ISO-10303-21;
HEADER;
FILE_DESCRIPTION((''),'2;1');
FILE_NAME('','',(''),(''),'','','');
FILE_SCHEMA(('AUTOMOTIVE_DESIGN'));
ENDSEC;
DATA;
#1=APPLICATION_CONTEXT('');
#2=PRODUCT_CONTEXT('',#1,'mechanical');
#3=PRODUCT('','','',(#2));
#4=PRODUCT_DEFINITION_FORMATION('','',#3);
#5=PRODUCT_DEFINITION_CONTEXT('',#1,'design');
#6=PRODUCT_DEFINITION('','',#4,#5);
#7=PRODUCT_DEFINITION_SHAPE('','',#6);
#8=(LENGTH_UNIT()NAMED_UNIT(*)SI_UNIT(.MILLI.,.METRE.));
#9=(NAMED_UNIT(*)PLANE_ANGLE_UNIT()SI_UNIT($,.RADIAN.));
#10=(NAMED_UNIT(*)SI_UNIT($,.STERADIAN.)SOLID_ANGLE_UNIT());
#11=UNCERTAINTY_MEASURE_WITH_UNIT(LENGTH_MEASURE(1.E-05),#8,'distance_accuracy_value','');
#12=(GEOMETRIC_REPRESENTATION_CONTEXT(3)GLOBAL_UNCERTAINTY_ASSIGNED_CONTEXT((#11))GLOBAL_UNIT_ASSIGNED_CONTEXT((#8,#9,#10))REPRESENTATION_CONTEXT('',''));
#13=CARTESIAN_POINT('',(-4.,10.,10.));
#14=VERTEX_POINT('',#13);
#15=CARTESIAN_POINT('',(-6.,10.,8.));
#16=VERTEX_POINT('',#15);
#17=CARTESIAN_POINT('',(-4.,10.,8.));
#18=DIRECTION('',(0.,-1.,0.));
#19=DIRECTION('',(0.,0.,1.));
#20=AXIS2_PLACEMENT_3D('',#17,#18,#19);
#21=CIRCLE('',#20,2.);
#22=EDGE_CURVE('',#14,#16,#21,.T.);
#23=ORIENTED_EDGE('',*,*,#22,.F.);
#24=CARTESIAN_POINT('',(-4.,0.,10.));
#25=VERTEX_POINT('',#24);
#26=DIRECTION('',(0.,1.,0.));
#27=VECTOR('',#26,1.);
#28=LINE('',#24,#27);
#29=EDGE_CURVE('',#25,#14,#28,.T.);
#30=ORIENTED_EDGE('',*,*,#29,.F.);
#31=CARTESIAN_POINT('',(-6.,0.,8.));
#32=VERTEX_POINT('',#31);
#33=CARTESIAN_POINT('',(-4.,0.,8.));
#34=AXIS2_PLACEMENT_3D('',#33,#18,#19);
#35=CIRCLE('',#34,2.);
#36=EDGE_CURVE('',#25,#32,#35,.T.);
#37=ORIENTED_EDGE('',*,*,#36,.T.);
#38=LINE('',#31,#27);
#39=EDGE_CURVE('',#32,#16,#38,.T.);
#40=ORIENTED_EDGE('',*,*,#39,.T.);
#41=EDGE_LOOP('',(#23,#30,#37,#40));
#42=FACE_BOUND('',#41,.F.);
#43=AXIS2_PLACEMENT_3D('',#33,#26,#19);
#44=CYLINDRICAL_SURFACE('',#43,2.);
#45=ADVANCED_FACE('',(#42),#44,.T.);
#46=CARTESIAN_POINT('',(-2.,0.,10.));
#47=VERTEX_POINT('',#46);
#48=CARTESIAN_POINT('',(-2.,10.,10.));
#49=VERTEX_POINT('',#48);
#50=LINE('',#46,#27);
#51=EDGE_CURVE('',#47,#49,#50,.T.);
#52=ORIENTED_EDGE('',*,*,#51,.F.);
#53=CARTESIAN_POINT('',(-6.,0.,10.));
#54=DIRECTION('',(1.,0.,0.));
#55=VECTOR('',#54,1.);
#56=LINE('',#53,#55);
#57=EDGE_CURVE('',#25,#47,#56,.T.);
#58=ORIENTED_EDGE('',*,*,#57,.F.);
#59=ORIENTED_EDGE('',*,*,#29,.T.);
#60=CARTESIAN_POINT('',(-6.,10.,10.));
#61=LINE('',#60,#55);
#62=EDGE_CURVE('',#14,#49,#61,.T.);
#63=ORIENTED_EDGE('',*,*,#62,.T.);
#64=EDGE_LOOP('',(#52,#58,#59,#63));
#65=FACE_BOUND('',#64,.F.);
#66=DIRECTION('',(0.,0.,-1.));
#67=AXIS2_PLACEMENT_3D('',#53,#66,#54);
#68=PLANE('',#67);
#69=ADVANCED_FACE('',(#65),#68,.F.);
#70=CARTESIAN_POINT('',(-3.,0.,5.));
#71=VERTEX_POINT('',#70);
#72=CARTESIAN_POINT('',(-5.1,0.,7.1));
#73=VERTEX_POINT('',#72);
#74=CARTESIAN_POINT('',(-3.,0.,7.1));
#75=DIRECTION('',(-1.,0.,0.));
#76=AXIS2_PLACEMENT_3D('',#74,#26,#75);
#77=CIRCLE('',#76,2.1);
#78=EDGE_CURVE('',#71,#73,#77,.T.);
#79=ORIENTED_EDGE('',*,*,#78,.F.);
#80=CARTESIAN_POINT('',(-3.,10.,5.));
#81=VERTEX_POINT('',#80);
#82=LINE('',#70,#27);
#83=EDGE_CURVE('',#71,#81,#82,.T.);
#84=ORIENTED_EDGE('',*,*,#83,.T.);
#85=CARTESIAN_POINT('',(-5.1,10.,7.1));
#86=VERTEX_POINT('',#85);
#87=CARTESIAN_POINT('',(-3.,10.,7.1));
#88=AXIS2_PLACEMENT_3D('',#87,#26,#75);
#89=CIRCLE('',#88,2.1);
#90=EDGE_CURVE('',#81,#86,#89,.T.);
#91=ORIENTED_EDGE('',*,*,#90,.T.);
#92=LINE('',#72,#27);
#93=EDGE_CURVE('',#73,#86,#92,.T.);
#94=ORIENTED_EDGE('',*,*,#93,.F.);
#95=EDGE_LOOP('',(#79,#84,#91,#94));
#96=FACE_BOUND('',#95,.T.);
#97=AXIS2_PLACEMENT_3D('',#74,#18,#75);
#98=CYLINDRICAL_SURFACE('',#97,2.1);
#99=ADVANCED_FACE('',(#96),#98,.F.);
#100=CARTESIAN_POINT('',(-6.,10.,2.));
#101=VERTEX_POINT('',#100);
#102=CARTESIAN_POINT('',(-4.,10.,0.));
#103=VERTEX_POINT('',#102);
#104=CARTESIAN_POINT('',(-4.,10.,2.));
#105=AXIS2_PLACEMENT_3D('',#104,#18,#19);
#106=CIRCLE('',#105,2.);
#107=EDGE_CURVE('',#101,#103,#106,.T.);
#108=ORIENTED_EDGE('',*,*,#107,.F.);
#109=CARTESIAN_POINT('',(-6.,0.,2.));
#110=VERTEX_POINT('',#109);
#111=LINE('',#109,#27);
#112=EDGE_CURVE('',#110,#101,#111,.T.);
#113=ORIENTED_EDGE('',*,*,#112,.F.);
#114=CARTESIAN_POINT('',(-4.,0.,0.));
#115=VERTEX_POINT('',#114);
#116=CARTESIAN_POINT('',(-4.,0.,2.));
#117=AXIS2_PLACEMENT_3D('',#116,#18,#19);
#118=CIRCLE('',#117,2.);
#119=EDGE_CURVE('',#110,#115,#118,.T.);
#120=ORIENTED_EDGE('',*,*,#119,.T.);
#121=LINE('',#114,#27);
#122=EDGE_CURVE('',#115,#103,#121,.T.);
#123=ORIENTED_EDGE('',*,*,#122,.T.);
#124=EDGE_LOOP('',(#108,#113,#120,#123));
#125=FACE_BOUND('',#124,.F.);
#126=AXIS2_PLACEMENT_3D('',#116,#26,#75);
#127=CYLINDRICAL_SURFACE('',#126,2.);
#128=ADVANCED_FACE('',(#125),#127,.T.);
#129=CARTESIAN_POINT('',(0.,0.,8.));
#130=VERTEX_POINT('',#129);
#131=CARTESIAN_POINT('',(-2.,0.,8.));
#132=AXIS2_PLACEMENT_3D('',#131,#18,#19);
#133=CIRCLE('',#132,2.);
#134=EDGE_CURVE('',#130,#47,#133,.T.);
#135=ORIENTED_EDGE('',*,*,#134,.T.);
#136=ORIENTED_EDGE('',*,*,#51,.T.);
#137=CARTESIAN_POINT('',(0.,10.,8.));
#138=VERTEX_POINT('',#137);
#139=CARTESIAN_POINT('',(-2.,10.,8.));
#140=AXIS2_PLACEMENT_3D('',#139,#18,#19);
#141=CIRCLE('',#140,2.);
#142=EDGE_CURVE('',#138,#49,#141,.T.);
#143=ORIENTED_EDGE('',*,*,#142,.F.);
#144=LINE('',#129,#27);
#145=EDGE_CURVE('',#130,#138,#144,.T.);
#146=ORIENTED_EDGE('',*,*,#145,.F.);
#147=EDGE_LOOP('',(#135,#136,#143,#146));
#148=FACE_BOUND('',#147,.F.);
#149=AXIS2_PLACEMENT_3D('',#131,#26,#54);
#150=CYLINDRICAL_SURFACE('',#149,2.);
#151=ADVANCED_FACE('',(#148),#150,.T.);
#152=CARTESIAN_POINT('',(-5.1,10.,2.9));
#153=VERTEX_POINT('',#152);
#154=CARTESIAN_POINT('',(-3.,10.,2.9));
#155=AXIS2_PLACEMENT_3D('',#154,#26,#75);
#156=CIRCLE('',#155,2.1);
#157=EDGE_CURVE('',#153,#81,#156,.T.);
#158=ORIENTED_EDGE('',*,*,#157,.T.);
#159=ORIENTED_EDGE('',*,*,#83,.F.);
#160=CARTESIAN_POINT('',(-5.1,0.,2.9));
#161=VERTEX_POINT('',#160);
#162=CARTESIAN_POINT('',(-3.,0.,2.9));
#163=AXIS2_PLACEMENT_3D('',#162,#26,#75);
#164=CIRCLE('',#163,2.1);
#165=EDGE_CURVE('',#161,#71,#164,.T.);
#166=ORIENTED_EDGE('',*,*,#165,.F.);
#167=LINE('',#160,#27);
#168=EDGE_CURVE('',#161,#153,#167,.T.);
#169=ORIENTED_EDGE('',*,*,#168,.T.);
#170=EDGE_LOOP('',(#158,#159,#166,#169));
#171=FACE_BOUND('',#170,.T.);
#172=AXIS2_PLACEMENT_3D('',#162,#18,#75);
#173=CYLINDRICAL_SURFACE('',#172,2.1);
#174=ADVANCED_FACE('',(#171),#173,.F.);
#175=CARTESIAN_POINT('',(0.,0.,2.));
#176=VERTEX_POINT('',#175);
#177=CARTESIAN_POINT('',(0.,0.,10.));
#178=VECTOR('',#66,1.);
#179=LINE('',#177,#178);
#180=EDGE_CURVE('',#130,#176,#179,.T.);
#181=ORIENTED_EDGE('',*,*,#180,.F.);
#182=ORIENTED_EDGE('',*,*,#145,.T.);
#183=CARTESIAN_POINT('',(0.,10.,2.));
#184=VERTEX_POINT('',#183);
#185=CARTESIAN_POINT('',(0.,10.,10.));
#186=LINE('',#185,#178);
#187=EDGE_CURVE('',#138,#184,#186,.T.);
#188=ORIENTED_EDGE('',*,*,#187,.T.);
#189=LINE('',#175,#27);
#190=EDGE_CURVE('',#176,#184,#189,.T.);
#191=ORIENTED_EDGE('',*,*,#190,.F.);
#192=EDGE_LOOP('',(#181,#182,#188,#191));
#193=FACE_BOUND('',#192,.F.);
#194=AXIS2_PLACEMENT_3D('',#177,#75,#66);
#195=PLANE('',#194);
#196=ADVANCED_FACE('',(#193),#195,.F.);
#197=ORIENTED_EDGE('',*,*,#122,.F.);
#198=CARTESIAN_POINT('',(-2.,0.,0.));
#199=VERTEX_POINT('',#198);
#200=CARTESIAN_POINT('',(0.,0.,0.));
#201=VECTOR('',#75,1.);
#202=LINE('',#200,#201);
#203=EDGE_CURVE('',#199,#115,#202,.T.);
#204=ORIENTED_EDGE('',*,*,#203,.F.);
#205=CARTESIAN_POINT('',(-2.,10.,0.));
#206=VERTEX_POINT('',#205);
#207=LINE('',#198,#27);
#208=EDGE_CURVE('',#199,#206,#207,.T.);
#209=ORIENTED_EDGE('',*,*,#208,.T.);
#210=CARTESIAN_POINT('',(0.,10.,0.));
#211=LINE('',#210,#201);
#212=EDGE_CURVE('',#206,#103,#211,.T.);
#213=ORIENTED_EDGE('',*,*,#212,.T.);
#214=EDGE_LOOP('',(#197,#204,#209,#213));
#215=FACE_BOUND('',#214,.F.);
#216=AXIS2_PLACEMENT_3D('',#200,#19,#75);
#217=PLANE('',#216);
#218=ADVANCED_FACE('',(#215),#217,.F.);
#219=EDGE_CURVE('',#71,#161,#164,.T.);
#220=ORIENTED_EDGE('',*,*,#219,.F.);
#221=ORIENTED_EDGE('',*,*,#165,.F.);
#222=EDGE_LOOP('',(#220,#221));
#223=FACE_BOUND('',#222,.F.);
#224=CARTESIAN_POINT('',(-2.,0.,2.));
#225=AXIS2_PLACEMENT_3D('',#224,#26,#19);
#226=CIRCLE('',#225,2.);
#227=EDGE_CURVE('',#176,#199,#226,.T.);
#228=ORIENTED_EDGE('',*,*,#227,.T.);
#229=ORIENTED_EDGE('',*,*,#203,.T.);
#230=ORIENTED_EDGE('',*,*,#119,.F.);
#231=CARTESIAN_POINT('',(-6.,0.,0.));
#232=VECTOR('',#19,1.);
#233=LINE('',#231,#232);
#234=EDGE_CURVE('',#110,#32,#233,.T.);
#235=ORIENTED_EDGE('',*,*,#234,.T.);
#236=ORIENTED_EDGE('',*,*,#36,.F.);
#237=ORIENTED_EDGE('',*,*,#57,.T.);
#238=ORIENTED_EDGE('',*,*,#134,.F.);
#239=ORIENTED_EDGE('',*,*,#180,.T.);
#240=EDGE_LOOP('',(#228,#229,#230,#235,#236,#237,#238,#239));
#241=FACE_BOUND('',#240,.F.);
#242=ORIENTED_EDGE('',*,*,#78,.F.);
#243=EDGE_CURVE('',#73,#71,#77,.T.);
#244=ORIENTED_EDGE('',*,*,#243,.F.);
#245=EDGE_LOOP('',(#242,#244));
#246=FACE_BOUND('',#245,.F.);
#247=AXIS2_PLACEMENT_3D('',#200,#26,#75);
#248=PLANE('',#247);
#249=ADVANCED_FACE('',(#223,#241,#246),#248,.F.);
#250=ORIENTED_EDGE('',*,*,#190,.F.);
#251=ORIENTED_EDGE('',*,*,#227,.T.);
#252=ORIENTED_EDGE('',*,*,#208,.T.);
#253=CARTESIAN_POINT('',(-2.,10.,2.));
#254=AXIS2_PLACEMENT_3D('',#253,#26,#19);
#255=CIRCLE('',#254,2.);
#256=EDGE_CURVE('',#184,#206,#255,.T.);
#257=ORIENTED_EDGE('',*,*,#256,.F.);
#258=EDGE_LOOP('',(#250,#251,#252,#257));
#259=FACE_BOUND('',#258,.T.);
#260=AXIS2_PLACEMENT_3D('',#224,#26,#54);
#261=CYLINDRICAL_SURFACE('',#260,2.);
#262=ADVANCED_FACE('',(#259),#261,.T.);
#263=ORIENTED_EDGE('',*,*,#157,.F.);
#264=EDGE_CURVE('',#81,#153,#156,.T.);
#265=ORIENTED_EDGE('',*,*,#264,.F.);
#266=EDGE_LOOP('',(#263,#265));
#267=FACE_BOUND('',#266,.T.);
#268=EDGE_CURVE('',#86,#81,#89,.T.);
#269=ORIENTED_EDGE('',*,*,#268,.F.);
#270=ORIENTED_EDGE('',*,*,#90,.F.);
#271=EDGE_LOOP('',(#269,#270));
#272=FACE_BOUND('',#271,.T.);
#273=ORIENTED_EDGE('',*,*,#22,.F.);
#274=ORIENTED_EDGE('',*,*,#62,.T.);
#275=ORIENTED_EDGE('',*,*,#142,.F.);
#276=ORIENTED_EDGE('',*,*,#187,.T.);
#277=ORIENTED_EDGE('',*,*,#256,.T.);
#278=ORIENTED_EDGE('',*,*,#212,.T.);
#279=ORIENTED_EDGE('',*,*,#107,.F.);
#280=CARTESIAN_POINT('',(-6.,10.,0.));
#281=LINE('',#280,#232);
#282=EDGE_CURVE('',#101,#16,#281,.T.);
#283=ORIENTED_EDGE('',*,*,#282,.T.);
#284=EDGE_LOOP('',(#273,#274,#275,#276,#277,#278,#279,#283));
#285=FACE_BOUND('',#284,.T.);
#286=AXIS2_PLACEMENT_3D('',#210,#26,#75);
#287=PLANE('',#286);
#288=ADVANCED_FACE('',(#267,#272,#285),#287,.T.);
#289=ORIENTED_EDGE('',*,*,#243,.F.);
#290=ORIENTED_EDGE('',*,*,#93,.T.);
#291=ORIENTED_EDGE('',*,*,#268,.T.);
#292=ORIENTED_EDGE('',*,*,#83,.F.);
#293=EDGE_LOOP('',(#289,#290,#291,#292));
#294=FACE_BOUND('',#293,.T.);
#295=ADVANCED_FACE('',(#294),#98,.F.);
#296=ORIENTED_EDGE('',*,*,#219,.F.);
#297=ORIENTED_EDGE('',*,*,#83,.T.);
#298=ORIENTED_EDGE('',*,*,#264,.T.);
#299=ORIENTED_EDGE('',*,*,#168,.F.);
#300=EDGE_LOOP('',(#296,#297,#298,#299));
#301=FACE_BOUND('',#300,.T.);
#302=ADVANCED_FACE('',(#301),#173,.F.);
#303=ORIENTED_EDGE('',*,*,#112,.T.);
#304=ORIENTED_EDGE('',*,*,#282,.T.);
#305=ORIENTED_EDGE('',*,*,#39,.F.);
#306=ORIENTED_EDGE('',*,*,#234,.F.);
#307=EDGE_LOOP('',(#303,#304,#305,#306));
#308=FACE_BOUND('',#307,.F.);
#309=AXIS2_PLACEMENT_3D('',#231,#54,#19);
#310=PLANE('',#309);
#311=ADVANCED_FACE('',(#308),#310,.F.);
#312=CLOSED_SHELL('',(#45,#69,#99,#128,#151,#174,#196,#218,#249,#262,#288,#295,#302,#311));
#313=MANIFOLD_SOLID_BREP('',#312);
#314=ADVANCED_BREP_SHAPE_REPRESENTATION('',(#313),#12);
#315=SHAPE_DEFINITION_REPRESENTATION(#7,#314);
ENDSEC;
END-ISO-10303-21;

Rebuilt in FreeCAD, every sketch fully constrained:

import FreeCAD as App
import Part
import Sketcher
from FreeCAD import Vector
Q = App.Units.Quantity


def edges_at(feature, points):
    """Names of the edges that pass closest to the given points."""
    edges = feature.Shape.Edges
    near = lambda p: min(range(len(edges)), key=lambda i: edges[i].distToShape(Part.Vertex(*p))[0])
    return sorted({f"Edge{near(p) + 1}" for p in points})


def add_polygon(sketch, points):
    """Adds a closed chain of lines whose ends are joined by coincident constraints."""
    first, n = sketch.GeometryCount, len(points)
    for a, b in zip(points, points[1:] + points[:1]):
        sketch.addGeometry(Part.LineSegment(App.Vector(*a, 0), App.Vector(*b, 0)), False)
    for i in range(n):
        sketch.addConstraint(Sketcher.Constraint("Coincident", first + i, 2, first + (i + 1) % n, 1))

doc = App.newDocument("Part")
body = doc.addObject("PartDesign::Body", "Body")

# Sketch on XZ plane
sketch1 = body.newObject("Sketcher::SketchObject", "Sketch")
sketch1.AttachmentSupport = (doc.getObject("XZ_Plane"), [""])
sketch1.MapMode = "FlatFace"
add_polygon(sketch1, [(0, 10), (0, 0), (-6, 0), (-6, 10)])  # lines 0-3
sketch1.addGeometry(Part.Circle(Vector(-3, 2.9, 0), Vector(0, 0, 1), 2.1), False)  # 4
sketch1.addGeometry(Part.Circle(Vector(-3, 7.1, 0), Vector(0, 0, 1), 2.1), False)  # 5
sketch1.addConstraint([
    Sketcher.Constraint("Vertical", 0),
    Sketcher.Constraint("Horizontal", 1),
    Sketcher.Constraint("Vertical", 2),
    Sketcher.Constraint("Horizontal", 3),
    Sketcher.Constraint("Coincident", 0, 2, -1, 1),
    Sketcher.Constraint("Equal", 4, 5),
    Sketcher.Constraint("Vertical", 4, 3, 5, 3),
    Sketcher.Constraint("Diameter", 4, Q("4.2 mm")),
    Sketcher.Constraint("DistanceX", 1, 2, 1, 1, Q("6 mm")),
    Sketcher.Constraint("DistanceY", 0, 2, 0, 1, Q("10 mm")),
    Sketcher.Constraint("DistanceX", 4, 3, -1, 1, Q("3 mm")),
    Sketcher.Constraint("DistanceY", -1, 1, 4, 3, Q("2.9 mm")),
    Sketcher.Constraint("DistanceY", 4, 3, 5, 3, Q("4.2 mm")),
])
pad1 = body.newObject("PartDesign::Pad", "Pad")
pad1.Profile = sketch1
pad1.Length = 10
pad1.Reversed = True
doc.recompute()

fillet = body.newObject("PartDesign::Fillet", "Fillet")
fillet.Base = (pad1, edges_at(pad1, [
    (-6, 5, 0),
    (-6, 5, 10),
    (0, 5, 10),
    (0, 5, 0),
]))
fillet.Radius = 2

doc.recompute()
